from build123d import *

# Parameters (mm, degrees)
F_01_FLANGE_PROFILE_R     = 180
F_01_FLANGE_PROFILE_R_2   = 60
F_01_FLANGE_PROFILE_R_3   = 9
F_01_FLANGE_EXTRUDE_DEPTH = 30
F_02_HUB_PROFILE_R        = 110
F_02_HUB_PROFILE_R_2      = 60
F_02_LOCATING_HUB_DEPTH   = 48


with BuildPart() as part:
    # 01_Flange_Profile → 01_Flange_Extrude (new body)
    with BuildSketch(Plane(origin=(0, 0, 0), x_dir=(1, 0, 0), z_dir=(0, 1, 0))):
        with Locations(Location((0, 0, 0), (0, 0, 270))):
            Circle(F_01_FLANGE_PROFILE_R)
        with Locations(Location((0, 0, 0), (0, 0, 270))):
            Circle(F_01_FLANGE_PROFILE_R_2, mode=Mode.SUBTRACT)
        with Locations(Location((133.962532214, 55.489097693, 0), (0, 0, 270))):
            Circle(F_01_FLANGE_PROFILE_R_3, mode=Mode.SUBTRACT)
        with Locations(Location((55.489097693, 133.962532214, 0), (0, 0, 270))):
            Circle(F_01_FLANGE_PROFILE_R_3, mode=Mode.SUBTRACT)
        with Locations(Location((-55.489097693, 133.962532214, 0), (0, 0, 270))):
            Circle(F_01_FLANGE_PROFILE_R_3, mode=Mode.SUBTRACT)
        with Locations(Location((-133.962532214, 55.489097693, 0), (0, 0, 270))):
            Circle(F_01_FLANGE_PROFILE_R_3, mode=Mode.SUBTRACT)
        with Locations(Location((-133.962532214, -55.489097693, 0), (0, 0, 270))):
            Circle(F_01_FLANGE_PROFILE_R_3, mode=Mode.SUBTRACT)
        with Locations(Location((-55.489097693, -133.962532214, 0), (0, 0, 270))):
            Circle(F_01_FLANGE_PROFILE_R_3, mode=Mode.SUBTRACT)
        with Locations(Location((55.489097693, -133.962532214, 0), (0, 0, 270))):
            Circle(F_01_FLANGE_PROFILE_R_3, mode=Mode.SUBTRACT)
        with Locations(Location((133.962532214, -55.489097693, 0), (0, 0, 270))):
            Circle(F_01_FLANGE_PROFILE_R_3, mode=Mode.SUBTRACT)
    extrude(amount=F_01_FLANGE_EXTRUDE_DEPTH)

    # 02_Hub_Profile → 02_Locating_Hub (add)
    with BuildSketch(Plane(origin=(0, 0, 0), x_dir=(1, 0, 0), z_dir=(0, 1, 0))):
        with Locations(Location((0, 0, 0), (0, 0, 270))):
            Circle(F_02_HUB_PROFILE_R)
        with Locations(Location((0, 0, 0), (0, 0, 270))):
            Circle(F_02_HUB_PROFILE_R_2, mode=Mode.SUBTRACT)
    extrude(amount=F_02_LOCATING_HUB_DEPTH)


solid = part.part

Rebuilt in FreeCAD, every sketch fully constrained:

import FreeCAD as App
import Part
import Sketcher

V = App.Vector

doc = App.newDocument("Part")
body = doc.addObject("PartDesign::Body", "Body")

# Sketch on XZ plane
sketch1 = doc.addObject("Sketcher::SketchObject", "Sketch")
body.addObject(sketch1)
sketch1.AttachmentSupport = (doc.XZ_Plane, [""])
sketch1.MapMode = "FlatFace"
sketch1.addGeometry(Part.Circle(V(0, 0, 0), V(0, 0, 1), 180), False)
sketch1.addGeometry(Part.Circle(V(-133.962532, -55.489098, 0), V(0, 0, 1), 9), False)
sketch1.addGeometry(Part.Circle(V(-55.489098, -133.962532, 0), V(0, 0, 1), 9), False)
sketch1.addGeometry(Part.Circle(V(-133.962532, 55.489098, 0), V(0, 0, 1), 9), False)
sketch1.addGeometry(Part.Circle(V(-55.489098, 133.962532, 0), V(0, 0, 1), 9), False)
sketch1.addGeometry(Part.Circle(V(55.489098, -133.962532, 0), V(0, 0, 1), 9), False)
sketch1.addGeometry(Part.Circle(V(133.962532, -55.489098, 0), V(0, 0, 1), 9), False)
sketch1.addGeometry(Part.Circle(V(0, 0, 0), V(0, 0, 1), 60), False)
sketch1.addGeometry(Part.Circle(V(55.489098, 133.962532, 0), V(0, 0, 1), 9), False)
sketch1.addGeometry(Part.Circle(V(133.962532, 55.489098, 0), V(0, 0, 1), 9), False)
sketch1.addConstraint(Sketcher.Constraint("Coincident", 0, 3, -1, 1))
sketch1.addConstraint(Sketcher.Constraint("Coincident", 7, 3, -1, 1))
sketch1.addConstraint(Sketcher.Constraint("Equal", 1, 2))
sketch1.addConstraint(Sketcher.Constraint("Equal", 2, 3))
sketch1.addConstraint(Sketcher.Constraint("Equal", 3, 4))
sketch1.addConstraint(Sketcher.Constraint("Equal", 4, 5))
sketch1.addConstraint(Sketcher.Constraint("Equal", 5, 6))
sketch1.addConstraint(Sketcher.Constraint("Equal", 6, 8))
sketch1.addConstraint(Sketcher.Constraint("Equal", 8, 9))
sketch1.addConstraint(Sketcher.Constraint("Symmetric", 4, 3, 5, 3, -1, 1))
sketch1.addConstraint(Sketcher.Constraint("Symmetric", 3, 3, 6, 3, -1, 1))
sketch1.addConstraint(Sketcher.Constraint("Symmetric", 2, 3, 8, 3, -1, 1))
sketch1.addConstraint(Sketcher.Constraint("Symmetric", 1, 3, 9, 3, -1, 1))
sketch1.addConstraint(Sketcher.Constraint("Symmetric", 2, 3, 5, 3, -2))
sketch1.addConstraint(Sketcher.Constraint("Symmetric", 1, 3, 6, 3, -2))
sketch1.addConstraint(Sketcher.Constraint("Diameter", 0, 360.0))
sketch1.addConstraint(Sketcher.Constraint("Diameter", 1, 18.0))
sketch1.addConstraint(Sketcher.Constraint("Diameter", 7, 120.0))
sketch1.addConstraint(Sketcher.Constraint("DistanceY", 2, 3, 3, 3, 189.45163))
sketch1.addConstraint(Sketcher.Constraint("DistanceX", 1, 3, 5, 3, 189.45163))
sketch1.addConstraint(Sketcher.Constraint("DistanceX", 1, 3, -1, 1, 133.962532))
sketch1.addConstraint(Sketcher.Constraint("DistanceY", 1, 3, -1, 1, 55.489098))
pad1 = doc.addObject("PartDesign::Pad", "Pad")
body.addObject(pad1)
pad1.Profile = sketch1
pad1.Length = 30
pad1.Reversed = True

# Sketch on XZ plane
sketch2 = doc.addObject("Sketcher::SketchObject", "Sketch001")
body.addObject(sketch2)
sketch2.AttachmentSupport = (doc.XZ_Plane, [""])
sketch2.MapMode = "FlatFace"
sketch2.addGeometry(Part.Circle(V(0, 0, 0), V(0, 0, 1), 110), False)
sketch2.addGeometry(Part.Circle(V(0, 0, 0), V(0, 0, 1), 60), False)
sketch2.addConstraint(Sketcher.Constraint("Coincident", 0, 3, -1, 1))
sketch2.addConstraint(Sketcher.Constraint("Coincident", 1, 3, -1, 1))
sketch2.addConstraint(Sketcher.Constraint("Diameter", 0, 220.0))
sketch2.addConstraint(Sketcher.Constraint("Diameter", 1, 120.0))
pad2 = doc.addObject("PartDesign::Pad", "Pad001")
body.addObject(pad2)
pad2.Profile = sketch2
pad2.Length = 48
pad2.Reversed = True

doc.recompute()
